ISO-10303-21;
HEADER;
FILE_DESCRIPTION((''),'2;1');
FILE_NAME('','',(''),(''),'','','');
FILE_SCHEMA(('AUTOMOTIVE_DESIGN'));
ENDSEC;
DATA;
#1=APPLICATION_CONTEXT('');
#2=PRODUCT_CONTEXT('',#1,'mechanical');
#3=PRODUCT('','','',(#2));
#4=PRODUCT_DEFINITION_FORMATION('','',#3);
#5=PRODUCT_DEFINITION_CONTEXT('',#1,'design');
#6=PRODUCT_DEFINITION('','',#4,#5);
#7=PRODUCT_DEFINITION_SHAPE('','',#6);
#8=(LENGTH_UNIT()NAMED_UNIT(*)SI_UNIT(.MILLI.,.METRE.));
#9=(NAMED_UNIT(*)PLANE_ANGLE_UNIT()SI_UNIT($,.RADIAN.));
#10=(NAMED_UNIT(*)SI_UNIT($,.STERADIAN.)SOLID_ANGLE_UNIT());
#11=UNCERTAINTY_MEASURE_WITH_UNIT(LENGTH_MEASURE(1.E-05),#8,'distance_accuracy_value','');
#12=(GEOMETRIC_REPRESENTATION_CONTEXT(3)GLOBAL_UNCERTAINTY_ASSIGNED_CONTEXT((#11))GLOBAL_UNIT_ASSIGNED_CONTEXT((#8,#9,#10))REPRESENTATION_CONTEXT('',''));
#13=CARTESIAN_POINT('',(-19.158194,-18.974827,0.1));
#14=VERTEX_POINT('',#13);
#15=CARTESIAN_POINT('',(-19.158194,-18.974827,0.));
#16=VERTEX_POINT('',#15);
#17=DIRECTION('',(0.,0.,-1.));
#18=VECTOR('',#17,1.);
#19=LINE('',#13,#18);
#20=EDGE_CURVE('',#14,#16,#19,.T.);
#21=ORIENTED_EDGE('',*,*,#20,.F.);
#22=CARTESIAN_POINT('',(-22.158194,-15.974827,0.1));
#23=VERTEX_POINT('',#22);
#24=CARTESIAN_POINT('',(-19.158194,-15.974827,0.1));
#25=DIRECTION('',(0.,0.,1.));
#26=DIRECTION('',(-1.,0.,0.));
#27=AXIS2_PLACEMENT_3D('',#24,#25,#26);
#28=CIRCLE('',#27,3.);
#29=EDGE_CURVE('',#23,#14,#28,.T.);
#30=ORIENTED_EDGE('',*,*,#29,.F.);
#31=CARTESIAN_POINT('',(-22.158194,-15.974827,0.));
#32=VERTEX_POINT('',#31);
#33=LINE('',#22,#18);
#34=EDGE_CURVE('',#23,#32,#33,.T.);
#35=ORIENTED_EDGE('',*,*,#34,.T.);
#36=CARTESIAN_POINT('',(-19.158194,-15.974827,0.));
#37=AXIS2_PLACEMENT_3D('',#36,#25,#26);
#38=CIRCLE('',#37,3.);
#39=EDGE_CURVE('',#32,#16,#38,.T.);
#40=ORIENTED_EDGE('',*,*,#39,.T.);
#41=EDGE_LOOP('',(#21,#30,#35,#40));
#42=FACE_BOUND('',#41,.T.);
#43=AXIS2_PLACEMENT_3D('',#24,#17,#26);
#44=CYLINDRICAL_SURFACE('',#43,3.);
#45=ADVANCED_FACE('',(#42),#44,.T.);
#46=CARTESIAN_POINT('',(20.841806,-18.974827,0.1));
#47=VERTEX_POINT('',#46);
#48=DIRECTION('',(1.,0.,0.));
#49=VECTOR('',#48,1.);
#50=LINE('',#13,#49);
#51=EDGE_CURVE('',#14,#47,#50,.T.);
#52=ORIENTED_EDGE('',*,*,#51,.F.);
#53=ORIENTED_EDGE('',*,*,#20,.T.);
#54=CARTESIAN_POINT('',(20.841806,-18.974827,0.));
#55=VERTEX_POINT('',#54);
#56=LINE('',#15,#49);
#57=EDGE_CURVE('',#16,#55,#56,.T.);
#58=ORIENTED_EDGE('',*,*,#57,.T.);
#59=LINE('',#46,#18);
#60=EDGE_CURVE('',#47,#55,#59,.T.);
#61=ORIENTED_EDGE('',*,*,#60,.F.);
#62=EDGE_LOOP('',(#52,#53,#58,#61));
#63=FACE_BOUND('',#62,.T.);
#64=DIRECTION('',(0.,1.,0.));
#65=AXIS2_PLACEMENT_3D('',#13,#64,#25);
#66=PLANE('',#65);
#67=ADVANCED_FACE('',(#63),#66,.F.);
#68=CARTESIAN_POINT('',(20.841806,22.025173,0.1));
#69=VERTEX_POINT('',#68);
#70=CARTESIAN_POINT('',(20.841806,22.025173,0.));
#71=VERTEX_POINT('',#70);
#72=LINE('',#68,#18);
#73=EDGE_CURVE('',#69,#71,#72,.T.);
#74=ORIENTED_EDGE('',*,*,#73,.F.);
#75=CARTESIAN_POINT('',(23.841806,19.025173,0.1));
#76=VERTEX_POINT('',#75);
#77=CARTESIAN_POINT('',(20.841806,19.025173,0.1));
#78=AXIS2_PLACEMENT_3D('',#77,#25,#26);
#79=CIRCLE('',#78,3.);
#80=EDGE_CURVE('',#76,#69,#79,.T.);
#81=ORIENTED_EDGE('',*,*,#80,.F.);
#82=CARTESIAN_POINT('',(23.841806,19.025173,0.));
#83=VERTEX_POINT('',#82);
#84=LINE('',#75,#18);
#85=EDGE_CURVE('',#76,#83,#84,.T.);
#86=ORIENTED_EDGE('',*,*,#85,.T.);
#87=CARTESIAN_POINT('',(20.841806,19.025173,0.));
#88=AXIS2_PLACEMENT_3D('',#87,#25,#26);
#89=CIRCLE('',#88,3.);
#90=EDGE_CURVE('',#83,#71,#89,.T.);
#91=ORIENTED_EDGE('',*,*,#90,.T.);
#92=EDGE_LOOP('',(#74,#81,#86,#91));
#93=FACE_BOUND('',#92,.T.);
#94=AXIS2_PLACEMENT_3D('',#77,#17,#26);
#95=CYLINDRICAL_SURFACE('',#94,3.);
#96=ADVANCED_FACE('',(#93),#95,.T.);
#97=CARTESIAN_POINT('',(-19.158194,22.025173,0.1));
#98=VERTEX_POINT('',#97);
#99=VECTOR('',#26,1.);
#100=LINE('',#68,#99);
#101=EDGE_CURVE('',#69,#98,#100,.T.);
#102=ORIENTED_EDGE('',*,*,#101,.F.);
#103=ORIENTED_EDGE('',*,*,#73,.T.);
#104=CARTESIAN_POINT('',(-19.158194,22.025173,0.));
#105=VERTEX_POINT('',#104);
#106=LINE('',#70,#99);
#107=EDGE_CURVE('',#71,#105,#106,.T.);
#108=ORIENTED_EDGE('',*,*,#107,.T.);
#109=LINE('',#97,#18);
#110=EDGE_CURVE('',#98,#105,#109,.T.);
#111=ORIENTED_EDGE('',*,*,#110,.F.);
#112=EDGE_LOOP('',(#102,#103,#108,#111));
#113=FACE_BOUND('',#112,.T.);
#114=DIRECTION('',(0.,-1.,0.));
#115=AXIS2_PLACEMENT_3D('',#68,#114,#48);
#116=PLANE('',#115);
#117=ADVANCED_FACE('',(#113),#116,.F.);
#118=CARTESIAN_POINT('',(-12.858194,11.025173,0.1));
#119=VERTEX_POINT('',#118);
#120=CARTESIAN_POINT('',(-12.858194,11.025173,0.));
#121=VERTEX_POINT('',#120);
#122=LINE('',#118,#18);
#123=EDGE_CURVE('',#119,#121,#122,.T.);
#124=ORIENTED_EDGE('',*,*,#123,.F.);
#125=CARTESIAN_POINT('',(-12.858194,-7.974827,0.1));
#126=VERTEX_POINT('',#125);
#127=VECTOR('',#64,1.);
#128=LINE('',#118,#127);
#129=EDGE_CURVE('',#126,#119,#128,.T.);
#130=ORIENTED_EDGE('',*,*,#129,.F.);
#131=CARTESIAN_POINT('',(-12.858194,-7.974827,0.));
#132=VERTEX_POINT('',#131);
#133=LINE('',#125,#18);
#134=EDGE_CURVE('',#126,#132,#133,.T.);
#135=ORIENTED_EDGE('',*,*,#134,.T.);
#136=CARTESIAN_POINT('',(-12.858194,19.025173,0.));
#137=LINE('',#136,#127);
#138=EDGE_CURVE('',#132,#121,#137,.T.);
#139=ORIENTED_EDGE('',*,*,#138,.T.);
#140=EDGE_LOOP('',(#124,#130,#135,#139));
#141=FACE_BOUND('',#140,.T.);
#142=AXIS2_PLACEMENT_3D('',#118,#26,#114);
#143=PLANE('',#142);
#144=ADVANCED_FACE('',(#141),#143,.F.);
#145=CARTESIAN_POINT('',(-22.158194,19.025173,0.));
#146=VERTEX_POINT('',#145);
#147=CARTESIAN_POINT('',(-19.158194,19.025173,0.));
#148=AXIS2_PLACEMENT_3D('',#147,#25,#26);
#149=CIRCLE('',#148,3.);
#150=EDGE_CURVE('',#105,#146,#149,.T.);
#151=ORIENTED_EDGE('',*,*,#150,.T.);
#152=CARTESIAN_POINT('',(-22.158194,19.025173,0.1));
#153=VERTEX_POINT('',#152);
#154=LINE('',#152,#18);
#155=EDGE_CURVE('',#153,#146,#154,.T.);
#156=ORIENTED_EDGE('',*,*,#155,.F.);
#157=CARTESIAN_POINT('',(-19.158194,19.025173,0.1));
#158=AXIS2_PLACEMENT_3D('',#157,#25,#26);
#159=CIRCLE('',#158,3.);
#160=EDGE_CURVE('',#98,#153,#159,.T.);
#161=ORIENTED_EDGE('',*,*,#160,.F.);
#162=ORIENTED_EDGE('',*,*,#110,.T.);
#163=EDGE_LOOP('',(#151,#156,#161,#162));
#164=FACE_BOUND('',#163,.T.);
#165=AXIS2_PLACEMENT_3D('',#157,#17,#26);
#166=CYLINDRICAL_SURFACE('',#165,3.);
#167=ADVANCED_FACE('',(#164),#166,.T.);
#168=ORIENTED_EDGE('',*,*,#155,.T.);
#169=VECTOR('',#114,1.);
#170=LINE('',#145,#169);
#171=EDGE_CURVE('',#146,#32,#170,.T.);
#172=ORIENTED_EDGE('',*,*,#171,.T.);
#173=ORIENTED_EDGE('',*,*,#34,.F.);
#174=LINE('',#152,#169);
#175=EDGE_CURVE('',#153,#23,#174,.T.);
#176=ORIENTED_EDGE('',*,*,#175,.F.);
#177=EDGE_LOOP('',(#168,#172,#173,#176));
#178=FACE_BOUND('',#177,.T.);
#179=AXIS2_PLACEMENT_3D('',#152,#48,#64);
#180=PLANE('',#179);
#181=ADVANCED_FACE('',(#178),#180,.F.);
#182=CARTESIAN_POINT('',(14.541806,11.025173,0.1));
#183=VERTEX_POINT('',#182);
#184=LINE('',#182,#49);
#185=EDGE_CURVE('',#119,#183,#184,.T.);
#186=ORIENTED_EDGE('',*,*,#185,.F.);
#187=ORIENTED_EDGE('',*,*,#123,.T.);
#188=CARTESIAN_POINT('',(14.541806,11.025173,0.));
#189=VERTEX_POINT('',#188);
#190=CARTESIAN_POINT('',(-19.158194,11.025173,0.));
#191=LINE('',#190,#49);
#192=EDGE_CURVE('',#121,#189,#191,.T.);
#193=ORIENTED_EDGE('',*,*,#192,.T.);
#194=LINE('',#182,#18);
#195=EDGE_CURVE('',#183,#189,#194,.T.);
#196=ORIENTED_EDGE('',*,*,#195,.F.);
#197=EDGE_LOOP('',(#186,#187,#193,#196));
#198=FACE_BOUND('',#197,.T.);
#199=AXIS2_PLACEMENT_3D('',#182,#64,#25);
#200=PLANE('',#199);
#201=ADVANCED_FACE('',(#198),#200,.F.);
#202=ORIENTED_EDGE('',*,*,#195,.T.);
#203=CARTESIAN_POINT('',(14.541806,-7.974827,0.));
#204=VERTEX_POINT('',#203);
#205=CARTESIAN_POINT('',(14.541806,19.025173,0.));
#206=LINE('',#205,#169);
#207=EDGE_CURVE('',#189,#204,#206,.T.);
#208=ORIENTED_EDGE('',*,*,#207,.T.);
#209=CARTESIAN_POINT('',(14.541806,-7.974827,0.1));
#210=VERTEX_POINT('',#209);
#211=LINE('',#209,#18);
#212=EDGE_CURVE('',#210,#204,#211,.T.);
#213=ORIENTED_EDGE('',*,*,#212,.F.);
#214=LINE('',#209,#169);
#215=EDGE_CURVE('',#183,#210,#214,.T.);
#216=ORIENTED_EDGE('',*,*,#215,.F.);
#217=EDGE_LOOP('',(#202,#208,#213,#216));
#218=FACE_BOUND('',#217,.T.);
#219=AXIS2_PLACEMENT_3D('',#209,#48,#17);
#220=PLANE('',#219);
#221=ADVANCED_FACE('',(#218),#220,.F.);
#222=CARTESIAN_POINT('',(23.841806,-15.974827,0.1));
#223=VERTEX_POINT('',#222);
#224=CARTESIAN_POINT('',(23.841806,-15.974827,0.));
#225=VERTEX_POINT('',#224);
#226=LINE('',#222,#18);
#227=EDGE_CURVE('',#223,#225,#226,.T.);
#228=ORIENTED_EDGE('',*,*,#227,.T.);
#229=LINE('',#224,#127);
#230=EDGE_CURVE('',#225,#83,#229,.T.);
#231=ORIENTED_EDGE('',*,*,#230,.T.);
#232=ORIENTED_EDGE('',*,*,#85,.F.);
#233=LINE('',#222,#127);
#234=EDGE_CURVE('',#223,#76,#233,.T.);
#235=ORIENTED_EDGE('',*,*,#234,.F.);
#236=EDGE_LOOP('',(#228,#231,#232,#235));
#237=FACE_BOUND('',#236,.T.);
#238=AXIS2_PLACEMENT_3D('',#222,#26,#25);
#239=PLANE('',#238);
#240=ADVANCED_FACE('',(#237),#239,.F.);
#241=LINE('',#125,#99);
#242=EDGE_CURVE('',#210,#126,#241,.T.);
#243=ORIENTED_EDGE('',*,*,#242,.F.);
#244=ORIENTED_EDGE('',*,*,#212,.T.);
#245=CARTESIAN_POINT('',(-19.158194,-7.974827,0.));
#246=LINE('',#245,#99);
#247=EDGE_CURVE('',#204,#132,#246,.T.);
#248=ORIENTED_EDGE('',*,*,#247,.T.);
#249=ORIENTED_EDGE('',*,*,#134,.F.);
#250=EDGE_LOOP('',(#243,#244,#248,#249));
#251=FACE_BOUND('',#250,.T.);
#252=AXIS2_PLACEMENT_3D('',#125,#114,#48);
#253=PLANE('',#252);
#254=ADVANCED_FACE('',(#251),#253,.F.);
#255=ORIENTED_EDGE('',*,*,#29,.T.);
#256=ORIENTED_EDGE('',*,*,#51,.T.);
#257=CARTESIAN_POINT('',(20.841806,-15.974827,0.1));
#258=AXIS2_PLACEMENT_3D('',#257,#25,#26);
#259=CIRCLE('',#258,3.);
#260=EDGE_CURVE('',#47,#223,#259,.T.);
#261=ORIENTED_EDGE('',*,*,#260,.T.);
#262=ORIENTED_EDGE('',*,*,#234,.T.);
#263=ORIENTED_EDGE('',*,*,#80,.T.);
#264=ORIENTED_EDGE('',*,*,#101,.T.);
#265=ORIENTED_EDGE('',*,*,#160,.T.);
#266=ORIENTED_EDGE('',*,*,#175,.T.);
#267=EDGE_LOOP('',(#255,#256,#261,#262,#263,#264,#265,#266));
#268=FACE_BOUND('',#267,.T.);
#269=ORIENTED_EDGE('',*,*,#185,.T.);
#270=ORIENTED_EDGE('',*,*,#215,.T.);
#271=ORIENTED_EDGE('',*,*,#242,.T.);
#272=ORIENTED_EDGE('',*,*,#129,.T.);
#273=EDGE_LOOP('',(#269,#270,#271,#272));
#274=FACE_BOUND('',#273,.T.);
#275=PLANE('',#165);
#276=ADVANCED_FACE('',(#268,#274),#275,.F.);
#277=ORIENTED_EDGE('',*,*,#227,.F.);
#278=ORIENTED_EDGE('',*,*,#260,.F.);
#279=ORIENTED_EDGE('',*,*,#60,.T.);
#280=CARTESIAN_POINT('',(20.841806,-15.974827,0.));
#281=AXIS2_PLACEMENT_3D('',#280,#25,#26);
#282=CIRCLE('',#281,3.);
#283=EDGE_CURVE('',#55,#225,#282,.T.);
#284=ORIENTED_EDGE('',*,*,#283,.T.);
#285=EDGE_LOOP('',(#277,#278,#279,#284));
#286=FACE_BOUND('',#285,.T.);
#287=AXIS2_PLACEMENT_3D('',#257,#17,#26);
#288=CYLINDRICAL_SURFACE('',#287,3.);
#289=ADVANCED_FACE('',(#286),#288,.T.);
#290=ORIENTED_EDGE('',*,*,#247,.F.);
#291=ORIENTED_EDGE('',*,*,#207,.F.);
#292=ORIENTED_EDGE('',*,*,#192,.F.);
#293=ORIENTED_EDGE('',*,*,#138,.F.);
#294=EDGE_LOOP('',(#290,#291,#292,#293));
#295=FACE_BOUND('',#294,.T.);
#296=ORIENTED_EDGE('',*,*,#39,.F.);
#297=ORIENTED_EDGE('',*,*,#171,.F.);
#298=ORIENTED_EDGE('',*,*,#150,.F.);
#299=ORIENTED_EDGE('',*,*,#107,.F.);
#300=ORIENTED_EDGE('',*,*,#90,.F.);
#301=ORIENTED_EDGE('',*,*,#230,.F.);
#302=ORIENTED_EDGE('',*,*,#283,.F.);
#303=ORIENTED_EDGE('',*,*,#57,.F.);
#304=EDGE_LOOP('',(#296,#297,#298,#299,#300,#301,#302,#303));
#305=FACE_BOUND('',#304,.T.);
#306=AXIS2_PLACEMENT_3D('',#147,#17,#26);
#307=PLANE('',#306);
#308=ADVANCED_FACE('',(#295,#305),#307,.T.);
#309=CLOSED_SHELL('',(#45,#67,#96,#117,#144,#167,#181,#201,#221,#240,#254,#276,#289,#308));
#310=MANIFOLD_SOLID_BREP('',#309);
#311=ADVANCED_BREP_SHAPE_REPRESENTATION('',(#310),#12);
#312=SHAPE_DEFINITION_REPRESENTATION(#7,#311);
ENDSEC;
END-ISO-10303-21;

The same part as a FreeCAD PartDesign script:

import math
import FreeCAD as App
import Part
import Sketcher

V = App.Vector
Q = App.Units.Quantity

doc = App.newDocument("Part")
body = doc.addObject("PartDesign::Body", "Body")

# Sketch on XY plane
sketch1 = body.newObject("Sketcher::SketchObject", "Sketch")
sketch1.AttachmentSupport = (doc.getObject("XY_Plane"), [""])
sketch1.MapMode = "FlatFace"
sketch1.addGeometry(Part.LineSegment(V(-22.158194, 19.025173, 0), V(-22.158194, -15.974827, 0)), False)
sketch1.addGeometry(Part.ArcOfCircle(Part.Circle(V(-19.158194, -15.974827, 0), V(0, 0, 1), 3), math.radians(-180), math.radians(-90)), False)
sketch1.addGeometry(Part.LineSegment(V(-19.158194, -18.974827, 0), V(20.841806, -18.974827, 0)), False)
sketch1.addGeometry(Part.ArcOfCircle(Part.Circle(V(20.841806, -15.974827, 0), V(0, 0, 1), 3), math.radians(-90), math.radians(0)), False)
sketch1.addGeometry(Part.LineSegment(V(23.841806, -15.974827, 0), V(23.841806, 19.025173, 0)), False)
sketch1.addGeometry(Part.ArcOfCircle(Part.Circle(V(20.841806, 19.025173, 0), V(0, 0, 1), 3), math.radians(0), math.radians(90)), False)
sketch1.addGeometry(Part.LineSegment(V(20.841806, 22.025173, 0), V(-19.158194, 22.025173, 0)), False)
sketch1.addGeometry(Part.ArcOfCircle(Part.Circle(V(-19.158194, 19.025173, 0), V(0, 0, 1), 3), math.radians(90), math.radians(180)), False)
sketch1.addConstraint(Sketcher.Constraint("Tangent", 0, 2, 1, 1))
sketch1.addConstraint(Sketcher.Constraint("Tangent", 1, 2, 2, 1))
sketch1.addConstraint(Sketcher.Constraint("Tangent", 2, 2, 3, 1))
sketch1.addConstraint(Sketcher.Constraint("Tangent", 3, 2, 4, 1))
sketch1.addConstraint(Sketcher.Constraint("Tangent", 4, 2, 5, 1))
sketch1.addConstraint(Sketcher.Constraint("Tangent", 5, 2, 6, 1))
sketch1.addConstraint(Sketcher.Constraint("Tangent", 6, 2, 7, 1))
sketch1.addConstraint(Sketcher.Constraint("Tangent", 7, 2, 0, 1))
sketch1.addConstraint(Sketcher.Constraint("Vertical", 0))
sketch1.addConstraint(Sketcher.Constraint("Horizontal", 2))
sketch1.addConstraint(Sketcher.Constraint("Vertical", 4))
sketch1.addConstraint(Sketcher.Constraint("Horizontal", 6))
sketch1.addConstraint(Sketcher.Constraint("Equal", 1, 3))
sketch1.addConstraint(Sketcher.Constraint("Equal", 3, 5))
sketch1.addConstraint(Sketcher.Constraint("Equal", 5, 7))
sketch1.addConstraint(Sketcher.Constraint("Radius", 1, Q("3 mm")))
sketch1.addConstraint(Sketcher.Constraint("DistanceX", 2, 1, 2, 2, Q("40 mm")))
sketch1.addConstraint(Sketcher.Constraint("DistanceY", 0, 2, 0, 1, Q("35 mm")))
sketch1.addConstraint(Sketcher.Constraint("DistanceX", 1, 3, -1, 1, Q("19.158194 mm")))
sketch1.addConstraint(Sketcher.Constraint("DistanceY", 1, 3, -1, 1, Q("15.974827 mm")))
pad1 = body.newObject("PartDesign::Pad", "Pad")
pad1.Profile = sketch1
pad1.Length = 0.1

# Sketch on XY plane
sketch2 = body.newObject("Sketcher::SketchObject", "Sketch001")
sketch2.AttachmentSupport = (doc.getObject("XY_Plane"), [""])
sketch2.MapMode = "FlatFace"
sketch2.addGeometry(Part.LineSegment(V(14.541806, 11.025173, 0), V(14.541806, -7.974827, 0)), False)
sketch2.addGeometry(Part.LineSegment(V(14.541806, -7.974827, 0), V(-12.858194, -7.974827, 0)), False)
sketch2.addGeometry(Part.LineSegment(V(-12.858194, -7.974827, 0), V(-12.858194, 11.025173, 0)), False)
sketch2.addGeometry(Part.LineSegment(V(-12.858194, 11.025173, 0), V(14.541806, 11.025173, 0)), False)
sketch2.addConstraint(Sketcher.Constraint("Coincident", 0, 2, 1, 1))
sketch2.addConstraint(Sketcher.Constraint("Coincident", 1, 2, 2, 1))
sketch2.addConstraint(Sketcher.Constraint("Coincident", 2, 2, 3, 1))
sketch2.addConstraint(Sketcher.Constraint("Coincident", 3, 2, 0, 1))
sketch2.addConstraint(Sketcher.Constraint("Vertical", 0))
sketch2.addConstraint(Sketcher.Constraint("Horizontal", 1))
sketch2.addConstraint(Sketcher.Constraint("Vertical", 2))
sketch2.addConstraint(Sketcher.Constraint("Horizontal", 3))
sketch2.addConstraint(Sketcher.Constraint("DistanceY", 0, 2, 0, 1, Q("19 mm")))
sketch2.addConstraint(Sketcher.Constraint("DistanceX", 1, 2, 1, 1, Q("27.4 mm")))
sketch2.addConstraint(Sketcher.Constraint("DistanceX", -1, 1, 0, 2, Q("14.541806 mm")))
sketch2.addConstraint(Sketcher.Constraint("DistanceY", 0, 2, -1, 1, Q("7.974827 mm")))
pocket1 = body.newObject("PartDesign::Pocket", "Pocket")
pocket1.Profile = sketch2
pocket1.Type = "ThroughAll"
pocket1.Midplane = True

doc.recompute()
